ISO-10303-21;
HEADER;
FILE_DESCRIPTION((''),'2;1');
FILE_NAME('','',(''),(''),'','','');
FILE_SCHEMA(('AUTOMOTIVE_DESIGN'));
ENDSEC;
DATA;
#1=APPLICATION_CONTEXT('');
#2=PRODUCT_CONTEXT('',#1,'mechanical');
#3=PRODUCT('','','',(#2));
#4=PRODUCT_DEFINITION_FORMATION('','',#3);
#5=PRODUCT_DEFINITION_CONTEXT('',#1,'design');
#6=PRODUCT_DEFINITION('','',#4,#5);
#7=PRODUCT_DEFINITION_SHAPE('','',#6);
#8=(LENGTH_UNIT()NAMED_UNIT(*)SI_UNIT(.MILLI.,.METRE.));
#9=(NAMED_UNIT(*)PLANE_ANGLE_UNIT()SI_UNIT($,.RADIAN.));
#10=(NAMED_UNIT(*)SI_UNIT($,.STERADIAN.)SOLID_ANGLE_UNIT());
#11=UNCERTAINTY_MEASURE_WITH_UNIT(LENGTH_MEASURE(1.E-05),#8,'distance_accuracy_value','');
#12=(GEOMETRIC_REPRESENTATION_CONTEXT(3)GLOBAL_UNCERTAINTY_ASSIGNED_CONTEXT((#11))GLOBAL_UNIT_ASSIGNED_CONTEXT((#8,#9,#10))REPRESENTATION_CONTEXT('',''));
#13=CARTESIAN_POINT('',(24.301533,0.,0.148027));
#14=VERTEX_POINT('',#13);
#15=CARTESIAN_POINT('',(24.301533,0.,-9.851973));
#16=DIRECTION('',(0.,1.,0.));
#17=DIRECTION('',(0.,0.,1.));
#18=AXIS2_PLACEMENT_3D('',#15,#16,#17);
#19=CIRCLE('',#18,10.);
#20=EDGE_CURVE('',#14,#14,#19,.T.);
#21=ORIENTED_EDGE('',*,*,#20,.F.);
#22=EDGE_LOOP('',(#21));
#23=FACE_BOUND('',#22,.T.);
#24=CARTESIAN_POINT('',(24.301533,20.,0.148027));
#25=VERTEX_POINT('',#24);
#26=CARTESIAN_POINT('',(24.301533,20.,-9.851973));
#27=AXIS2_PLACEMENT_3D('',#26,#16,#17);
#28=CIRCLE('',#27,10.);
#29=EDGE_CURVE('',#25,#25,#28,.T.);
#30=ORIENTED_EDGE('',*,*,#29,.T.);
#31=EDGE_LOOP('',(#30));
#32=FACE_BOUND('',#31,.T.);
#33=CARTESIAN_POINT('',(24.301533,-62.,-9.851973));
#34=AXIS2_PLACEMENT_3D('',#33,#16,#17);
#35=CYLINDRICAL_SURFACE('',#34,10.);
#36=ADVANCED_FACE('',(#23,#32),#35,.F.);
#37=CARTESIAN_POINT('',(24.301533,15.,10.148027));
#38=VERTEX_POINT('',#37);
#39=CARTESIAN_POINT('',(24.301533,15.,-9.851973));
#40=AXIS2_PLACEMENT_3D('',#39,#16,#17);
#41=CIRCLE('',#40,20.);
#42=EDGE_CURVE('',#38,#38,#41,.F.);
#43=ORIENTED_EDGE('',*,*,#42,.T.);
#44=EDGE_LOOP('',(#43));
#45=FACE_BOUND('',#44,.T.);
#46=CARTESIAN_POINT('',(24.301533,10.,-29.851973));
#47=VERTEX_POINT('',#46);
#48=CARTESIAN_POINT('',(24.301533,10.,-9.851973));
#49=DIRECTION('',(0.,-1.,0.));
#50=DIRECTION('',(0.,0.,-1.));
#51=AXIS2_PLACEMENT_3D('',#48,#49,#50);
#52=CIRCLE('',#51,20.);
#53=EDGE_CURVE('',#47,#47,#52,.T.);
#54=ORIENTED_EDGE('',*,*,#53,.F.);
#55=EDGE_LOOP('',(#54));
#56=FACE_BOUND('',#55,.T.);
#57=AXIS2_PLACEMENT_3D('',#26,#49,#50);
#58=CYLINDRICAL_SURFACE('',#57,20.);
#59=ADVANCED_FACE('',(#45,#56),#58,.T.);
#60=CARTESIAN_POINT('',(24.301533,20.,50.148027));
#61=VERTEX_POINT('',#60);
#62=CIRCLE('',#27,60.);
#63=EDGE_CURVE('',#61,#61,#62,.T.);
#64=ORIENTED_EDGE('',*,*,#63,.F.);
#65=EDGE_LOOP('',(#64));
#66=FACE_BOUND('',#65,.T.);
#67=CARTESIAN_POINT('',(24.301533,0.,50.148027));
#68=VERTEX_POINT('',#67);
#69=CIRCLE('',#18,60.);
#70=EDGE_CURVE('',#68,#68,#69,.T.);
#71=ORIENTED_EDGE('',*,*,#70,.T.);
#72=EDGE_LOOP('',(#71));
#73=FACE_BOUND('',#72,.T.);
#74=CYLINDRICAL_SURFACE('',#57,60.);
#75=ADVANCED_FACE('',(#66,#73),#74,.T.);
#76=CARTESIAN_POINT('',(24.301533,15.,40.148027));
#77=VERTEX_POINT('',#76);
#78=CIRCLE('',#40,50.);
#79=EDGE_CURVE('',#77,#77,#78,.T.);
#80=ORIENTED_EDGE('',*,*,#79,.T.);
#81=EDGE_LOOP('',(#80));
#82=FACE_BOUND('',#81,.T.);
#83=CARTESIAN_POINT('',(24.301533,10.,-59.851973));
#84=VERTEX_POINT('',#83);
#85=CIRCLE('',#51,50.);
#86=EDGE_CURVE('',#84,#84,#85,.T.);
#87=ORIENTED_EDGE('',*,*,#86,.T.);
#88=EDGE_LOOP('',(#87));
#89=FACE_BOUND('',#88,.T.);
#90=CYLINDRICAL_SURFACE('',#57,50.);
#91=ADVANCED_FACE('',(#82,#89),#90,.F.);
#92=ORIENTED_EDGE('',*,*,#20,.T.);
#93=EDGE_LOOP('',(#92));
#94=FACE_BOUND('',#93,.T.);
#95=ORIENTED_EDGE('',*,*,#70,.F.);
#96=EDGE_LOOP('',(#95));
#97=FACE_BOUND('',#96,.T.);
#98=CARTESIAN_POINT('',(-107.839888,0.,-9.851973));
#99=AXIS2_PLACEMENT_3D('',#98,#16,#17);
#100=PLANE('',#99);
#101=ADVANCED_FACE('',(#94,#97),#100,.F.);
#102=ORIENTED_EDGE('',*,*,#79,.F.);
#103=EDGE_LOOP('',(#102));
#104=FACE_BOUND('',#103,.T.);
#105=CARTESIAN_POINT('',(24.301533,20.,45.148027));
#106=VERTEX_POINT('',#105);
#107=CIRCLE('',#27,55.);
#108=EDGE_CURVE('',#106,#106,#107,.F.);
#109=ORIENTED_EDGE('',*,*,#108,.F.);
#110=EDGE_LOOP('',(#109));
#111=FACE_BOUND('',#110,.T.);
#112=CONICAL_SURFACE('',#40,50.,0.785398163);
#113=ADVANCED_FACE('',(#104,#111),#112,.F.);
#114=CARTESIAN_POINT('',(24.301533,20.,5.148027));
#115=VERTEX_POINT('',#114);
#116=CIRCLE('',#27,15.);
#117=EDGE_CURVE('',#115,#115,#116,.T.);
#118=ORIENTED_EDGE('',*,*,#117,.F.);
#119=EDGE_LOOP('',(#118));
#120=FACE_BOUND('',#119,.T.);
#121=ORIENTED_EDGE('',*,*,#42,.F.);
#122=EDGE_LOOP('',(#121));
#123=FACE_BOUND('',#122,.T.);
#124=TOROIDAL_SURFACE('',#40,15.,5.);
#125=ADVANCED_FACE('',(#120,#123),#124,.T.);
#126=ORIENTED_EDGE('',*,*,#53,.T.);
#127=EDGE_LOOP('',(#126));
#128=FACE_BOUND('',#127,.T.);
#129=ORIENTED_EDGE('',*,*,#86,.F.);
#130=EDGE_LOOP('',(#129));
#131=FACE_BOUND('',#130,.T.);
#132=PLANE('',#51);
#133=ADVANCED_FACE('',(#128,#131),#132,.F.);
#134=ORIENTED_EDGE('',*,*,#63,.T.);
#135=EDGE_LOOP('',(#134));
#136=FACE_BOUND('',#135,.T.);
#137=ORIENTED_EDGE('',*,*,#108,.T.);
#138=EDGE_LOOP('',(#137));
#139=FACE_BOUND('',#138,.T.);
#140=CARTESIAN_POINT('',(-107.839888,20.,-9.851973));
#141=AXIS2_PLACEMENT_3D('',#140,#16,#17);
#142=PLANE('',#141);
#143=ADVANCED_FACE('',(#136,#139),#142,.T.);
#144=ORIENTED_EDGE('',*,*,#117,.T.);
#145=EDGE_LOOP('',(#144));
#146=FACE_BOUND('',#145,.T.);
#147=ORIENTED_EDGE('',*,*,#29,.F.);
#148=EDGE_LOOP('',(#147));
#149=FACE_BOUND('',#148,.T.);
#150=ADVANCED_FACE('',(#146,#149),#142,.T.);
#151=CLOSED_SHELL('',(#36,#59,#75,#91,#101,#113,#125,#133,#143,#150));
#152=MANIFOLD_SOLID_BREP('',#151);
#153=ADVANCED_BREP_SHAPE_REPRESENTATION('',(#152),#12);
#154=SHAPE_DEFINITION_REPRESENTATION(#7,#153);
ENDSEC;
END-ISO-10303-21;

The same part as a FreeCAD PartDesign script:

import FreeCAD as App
import Part
import Sketcher
from FreeCAD import Vector
Q = App.Units.Quantity


def edges_at(feature, points):
    """Names of the edges that pass closest to the given points."""
    edges = feature.Shape.Edges
    near = lambda p: min(range(len(edges)), key=lambda i: edges[i].distToShape(Part.Vertex(*p))[0])
    return sorted({f"Edge{near(p) + 1}" for p in points})

doc = App.newDocument("Part")
body = doc.addObject("PartDesign::Body", "Body")

# Sketch on XZ plane
sketch1 = body.newObject("Sketcher::SketchObject", "Sketch")
sketch1.AttachmentSupport = (doc.getObject("XZ_Plane"), [""])
sketch1.MapMode = "FlatFace"
sketch1.addGeometry(Part.Circle(Vector(24, -10, 0), Vector(0, 0, 1), 20), False)
sketch1.addConstraint(Sketcher.Constraint("Diameter", 0, Q("40 mm")))
sketch1.addConstraint(Sketcher.Constraint("DistanceX", -1, 1, 0, 3, Q("24.301533 mm")))
sketch1.addConstraint(Sketcher.Constraint("DistanceY", 0, 3, -1, 1, Q("9.851973 mm")))
pad1 = body.newObject("PartDesign::Pad", "Pad")
pad1.Profile = sketch1
pad1.Length = 20
pad1.Reversed = True
body2 = doc.addObject("PartDesign::Body", "Body001")

# Sketch on XZ plane
sketch2 = body2.newObject("Sketcher::SketchObject", "Sketch001")
sketch2.AttachmentSupport = (doc.getObject("XZ_Plane001"), [""])
sketch2.MapMode = "FlatFace"
sketch2.addGeometry(Part.Circle(Vector(24, -10, 0), Vector(0, 0, 1), 60), False)
sketch2.addGeometry(Part.Circle(Vector(24, -10, 0), Vector(0, 0, 1), 50), False)
sketch2.addConstraint(Sketcher.Constraint("Coincident", 1, 3, 0, 3))
sketch2.addConstraint(Sketcher.Constraint("Diameter", 0, Q("120 mm")))
sketch2.addConstraint(Sketcher.Constraint("Diameter", 1, Q("100 mm")))
sketch2.addConstraint(Sketcher.Constraint("DistanceX", -1, 1, 0, 3, Q("24.301533 mm")))
sketch2.addConstraint(Sketcher.Constraint("DistanceY", 0, 3, -1, 1, Q("9.851973 mm")))
pad2 = body2.newObject("PartDesign::Pad", "Pad001")
pad2.Profile = sketch2
pad2.Length = 20
pad2.Reversed = True
body.AllowCompound = True
doc.recompute()

boolean = body.newObject("PartDesign::Boolean", "Boolean")
boolean.Type = "Fuse"
boolean.addObjects([body2])

# Sketch on XZ plane
sketch3 = body.newObject("Sketcher::SketchObject", "Sketch002")
sketch3.AttachmentSupport = (doc.getObject("XZ_Plane"), [""])
sketch3.MapMode = "FlatFace"
sketch3.addGeometry(Part.Circle(Vector(24, -10, 0), Vector(0, 0, 1), 50), False)
sketch3.addGeometry(Part.Circle(Vector(24, -10, 0), Vector(0, 0, 1), 20), False)
sketch3.addConstraint(Sketcher.Constraint("Coincident", 1, 3, 0, 3))
sketch3.addConstraint(Sketcher.Constraint("Diameter", 0, Q("100 mm")))
sketch3.addConstraint(Sketcher.Constraint("Diameter", 1, Q("40 mm")))
sketch3.addConstraint(Sketcher.Constraint("DistanceX", -1, 1, 0, 3, Q("24.301533 mm")))
sketch3.addConstraint(Sketcher.Constraint("DistanceY", 0, 3, -1, 1, Q("9.851973 mm")))
pad3 = body.newObject("PartDesign::Pad", "Pad002")
pad3.Profile = sketch3
pad3.Length = 10
pad3.Reversed = True
doc.recompute()

chamfer = body.newObject("PartDesign::Chamfer", "Chamfer")
chamfer.Base = (pad3, edges_at(pad3, [(-25.698, 20, -9.852)]))
chamfer.Size = 5
doc.recompute()

fillet = body.newObject("PartDesign::Fillet", "Fillet")
fillet.Base = (chamfer, edges_at(chamfer, [(4.302, 20, -9.852)]))
fillet.Radius = 5

# Sketch on XZ plane
sketch4 = body.newObject("Sketcher::SketchObject", "Sketch003")
sketch4.AttachmentSupport = (doc.getObject("XZ_Plane"), [""])
sketch4.MapMode = "FlatFace"
sketch4.AttachmentOffset = App.Placement(Vector(0, 0, -20), App.Rotation())
sketch4.addGeometry(Part.Circle(Vector(24, -10, 0), Vector(0, 0, 1), 10), False)
sketch4.addConstraint(Sketcher.Constraint("Diameter", 0, Q("20 mm")))
sketch4.addConstraint(Sketcher.Constraint("DistanceX", -1, 1, 0, 3, Q("24.301533 mm")))
sketch4.addConstraint(Sketcher.Constraint("DistanceY", 0, 3, -1, 1, Q("9.851973 mm")))
pocket1 = body.newObject("PartDesign::Pocket", "Pocket")
pocket1.Profile = sketch4
pocket1.Length = 82
pocket1.Reversed = True

doc.recompute()
